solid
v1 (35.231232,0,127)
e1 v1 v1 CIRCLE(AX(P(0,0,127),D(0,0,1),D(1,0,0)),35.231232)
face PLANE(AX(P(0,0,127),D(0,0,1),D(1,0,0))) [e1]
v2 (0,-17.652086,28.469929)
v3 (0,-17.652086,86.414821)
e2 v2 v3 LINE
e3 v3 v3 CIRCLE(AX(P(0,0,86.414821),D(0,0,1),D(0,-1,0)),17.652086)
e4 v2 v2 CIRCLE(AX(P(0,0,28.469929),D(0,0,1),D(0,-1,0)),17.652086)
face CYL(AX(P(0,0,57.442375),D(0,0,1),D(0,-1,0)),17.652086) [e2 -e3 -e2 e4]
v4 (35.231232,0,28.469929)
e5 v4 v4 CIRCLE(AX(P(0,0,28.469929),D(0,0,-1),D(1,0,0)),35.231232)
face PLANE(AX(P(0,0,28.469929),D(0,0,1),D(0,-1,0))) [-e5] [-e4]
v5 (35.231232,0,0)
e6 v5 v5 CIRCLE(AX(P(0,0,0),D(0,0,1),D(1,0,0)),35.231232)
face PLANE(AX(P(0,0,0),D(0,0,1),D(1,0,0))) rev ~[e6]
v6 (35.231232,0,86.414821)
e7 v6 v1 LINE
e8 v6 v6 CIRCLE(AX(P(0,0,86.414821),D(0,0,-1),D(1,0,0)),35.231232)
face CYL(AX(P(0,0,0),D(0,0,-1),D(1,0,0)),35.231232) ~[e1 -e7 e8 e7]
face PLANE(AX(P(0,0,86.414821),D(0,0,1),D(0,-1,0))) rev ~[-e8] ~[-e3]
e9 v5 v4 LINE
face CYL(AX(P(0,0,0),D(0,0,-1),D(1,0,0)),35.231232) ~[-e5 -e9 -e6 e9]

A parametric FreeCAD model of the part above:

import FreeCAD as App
import Part
import Sketcher
from FreeCAD import Vector
Q = App.Units.Quantity

doc = App.newDocument("Part")
body = doc.addObject("PartDesign::Body", "Body")

# Sketch on XY plane
sketch1 = body.newObject("Sketcher::SketchObject", "Sketch")
sketch1.AttachmentSupport = (doc.getObject("XY_Plane"), [""])
sketch1.MapMode = "FlatFace"
sketch1.addGeometry(Part.Circle(Vector(0, 0, 0), Vector(0, 0, 1), 35.231232), False)
sketch1.addConstraint([
    Sketcher.Constraint("Coincident", 0, 3, -1, 1),
    Sketcher.Constraint("Diameter", 0, 70.462464),
])
pad1 = body.newObject("PartDesign::Pad", "Pad")
pad1.Profile = sketch1
pad1.Length = Q("5 in")

# Sketch on YZ plane
sketch2 = body.newObject("Sketcher::SketchObject", "Sketch001")
sketch2.AttachmentSupport = (doc.getObject("YZ_Plane"), [""])
sketch2.MapMode = "FlatFace"
sketch2.addGeometry([
    Part.LineSegment(Vector(-35.304173, 86.414821, 0), Vector(-35.304173, 28.469929, 0)),
    Part.LineSegment(Vector(-35.304173, 28.469929, 0), Vector(-17.652086, 28.469929, 0)),
    Part.LineSegment(Vector(-17.652086, 28.469929, 0), Vector(-17.652086, 86.414821, 0)),
    Part.LineSegment(Vector(-17.652086, 86.414821, 0), Vector(-35.304173, 86.414821, 0)),
], False)
sketch2.addConstraint([
    Sketcher.Constraint("Coincident", 0, 2, 1, 1),
    Sketcher.Constraint("Coincident", 1, 2, 2, 1),
    Sketcher.Constraint("Coincident", 2, 2, 3, 1),
    Sketcher.Constraint("Coincident", 3, 2, 0, 1),
    Sketcher.Constraint("Vertical", 0),
    Sketcher.Constraint("Horizontal", 1),
    Sketcher.Constraint("Vertical", 2),
    Sketcher.Constraint("Horizontal", 3),
    Sketcher.Constraint("DistanceX", 1, 1, 1, 2, 17.652087),
    Sketcher.Constraint("DistanceY", 0, 2, 0, 1, 57.944892),
    Sketcher.Constraint("DistanceY", -1, 1, 0, 2, 28.469929),
    Sketcher.Constraint("DistanceX", 0, 2, -1, 1, 35.304173),
])
groove = body.newObject("PartDesign::Groove", "Groove")
groove.Profile = sketch2
groove.ReferenceAxis = (sketch2, ["V_Axis"])
groove.Angle = 360

doc.recompute()
